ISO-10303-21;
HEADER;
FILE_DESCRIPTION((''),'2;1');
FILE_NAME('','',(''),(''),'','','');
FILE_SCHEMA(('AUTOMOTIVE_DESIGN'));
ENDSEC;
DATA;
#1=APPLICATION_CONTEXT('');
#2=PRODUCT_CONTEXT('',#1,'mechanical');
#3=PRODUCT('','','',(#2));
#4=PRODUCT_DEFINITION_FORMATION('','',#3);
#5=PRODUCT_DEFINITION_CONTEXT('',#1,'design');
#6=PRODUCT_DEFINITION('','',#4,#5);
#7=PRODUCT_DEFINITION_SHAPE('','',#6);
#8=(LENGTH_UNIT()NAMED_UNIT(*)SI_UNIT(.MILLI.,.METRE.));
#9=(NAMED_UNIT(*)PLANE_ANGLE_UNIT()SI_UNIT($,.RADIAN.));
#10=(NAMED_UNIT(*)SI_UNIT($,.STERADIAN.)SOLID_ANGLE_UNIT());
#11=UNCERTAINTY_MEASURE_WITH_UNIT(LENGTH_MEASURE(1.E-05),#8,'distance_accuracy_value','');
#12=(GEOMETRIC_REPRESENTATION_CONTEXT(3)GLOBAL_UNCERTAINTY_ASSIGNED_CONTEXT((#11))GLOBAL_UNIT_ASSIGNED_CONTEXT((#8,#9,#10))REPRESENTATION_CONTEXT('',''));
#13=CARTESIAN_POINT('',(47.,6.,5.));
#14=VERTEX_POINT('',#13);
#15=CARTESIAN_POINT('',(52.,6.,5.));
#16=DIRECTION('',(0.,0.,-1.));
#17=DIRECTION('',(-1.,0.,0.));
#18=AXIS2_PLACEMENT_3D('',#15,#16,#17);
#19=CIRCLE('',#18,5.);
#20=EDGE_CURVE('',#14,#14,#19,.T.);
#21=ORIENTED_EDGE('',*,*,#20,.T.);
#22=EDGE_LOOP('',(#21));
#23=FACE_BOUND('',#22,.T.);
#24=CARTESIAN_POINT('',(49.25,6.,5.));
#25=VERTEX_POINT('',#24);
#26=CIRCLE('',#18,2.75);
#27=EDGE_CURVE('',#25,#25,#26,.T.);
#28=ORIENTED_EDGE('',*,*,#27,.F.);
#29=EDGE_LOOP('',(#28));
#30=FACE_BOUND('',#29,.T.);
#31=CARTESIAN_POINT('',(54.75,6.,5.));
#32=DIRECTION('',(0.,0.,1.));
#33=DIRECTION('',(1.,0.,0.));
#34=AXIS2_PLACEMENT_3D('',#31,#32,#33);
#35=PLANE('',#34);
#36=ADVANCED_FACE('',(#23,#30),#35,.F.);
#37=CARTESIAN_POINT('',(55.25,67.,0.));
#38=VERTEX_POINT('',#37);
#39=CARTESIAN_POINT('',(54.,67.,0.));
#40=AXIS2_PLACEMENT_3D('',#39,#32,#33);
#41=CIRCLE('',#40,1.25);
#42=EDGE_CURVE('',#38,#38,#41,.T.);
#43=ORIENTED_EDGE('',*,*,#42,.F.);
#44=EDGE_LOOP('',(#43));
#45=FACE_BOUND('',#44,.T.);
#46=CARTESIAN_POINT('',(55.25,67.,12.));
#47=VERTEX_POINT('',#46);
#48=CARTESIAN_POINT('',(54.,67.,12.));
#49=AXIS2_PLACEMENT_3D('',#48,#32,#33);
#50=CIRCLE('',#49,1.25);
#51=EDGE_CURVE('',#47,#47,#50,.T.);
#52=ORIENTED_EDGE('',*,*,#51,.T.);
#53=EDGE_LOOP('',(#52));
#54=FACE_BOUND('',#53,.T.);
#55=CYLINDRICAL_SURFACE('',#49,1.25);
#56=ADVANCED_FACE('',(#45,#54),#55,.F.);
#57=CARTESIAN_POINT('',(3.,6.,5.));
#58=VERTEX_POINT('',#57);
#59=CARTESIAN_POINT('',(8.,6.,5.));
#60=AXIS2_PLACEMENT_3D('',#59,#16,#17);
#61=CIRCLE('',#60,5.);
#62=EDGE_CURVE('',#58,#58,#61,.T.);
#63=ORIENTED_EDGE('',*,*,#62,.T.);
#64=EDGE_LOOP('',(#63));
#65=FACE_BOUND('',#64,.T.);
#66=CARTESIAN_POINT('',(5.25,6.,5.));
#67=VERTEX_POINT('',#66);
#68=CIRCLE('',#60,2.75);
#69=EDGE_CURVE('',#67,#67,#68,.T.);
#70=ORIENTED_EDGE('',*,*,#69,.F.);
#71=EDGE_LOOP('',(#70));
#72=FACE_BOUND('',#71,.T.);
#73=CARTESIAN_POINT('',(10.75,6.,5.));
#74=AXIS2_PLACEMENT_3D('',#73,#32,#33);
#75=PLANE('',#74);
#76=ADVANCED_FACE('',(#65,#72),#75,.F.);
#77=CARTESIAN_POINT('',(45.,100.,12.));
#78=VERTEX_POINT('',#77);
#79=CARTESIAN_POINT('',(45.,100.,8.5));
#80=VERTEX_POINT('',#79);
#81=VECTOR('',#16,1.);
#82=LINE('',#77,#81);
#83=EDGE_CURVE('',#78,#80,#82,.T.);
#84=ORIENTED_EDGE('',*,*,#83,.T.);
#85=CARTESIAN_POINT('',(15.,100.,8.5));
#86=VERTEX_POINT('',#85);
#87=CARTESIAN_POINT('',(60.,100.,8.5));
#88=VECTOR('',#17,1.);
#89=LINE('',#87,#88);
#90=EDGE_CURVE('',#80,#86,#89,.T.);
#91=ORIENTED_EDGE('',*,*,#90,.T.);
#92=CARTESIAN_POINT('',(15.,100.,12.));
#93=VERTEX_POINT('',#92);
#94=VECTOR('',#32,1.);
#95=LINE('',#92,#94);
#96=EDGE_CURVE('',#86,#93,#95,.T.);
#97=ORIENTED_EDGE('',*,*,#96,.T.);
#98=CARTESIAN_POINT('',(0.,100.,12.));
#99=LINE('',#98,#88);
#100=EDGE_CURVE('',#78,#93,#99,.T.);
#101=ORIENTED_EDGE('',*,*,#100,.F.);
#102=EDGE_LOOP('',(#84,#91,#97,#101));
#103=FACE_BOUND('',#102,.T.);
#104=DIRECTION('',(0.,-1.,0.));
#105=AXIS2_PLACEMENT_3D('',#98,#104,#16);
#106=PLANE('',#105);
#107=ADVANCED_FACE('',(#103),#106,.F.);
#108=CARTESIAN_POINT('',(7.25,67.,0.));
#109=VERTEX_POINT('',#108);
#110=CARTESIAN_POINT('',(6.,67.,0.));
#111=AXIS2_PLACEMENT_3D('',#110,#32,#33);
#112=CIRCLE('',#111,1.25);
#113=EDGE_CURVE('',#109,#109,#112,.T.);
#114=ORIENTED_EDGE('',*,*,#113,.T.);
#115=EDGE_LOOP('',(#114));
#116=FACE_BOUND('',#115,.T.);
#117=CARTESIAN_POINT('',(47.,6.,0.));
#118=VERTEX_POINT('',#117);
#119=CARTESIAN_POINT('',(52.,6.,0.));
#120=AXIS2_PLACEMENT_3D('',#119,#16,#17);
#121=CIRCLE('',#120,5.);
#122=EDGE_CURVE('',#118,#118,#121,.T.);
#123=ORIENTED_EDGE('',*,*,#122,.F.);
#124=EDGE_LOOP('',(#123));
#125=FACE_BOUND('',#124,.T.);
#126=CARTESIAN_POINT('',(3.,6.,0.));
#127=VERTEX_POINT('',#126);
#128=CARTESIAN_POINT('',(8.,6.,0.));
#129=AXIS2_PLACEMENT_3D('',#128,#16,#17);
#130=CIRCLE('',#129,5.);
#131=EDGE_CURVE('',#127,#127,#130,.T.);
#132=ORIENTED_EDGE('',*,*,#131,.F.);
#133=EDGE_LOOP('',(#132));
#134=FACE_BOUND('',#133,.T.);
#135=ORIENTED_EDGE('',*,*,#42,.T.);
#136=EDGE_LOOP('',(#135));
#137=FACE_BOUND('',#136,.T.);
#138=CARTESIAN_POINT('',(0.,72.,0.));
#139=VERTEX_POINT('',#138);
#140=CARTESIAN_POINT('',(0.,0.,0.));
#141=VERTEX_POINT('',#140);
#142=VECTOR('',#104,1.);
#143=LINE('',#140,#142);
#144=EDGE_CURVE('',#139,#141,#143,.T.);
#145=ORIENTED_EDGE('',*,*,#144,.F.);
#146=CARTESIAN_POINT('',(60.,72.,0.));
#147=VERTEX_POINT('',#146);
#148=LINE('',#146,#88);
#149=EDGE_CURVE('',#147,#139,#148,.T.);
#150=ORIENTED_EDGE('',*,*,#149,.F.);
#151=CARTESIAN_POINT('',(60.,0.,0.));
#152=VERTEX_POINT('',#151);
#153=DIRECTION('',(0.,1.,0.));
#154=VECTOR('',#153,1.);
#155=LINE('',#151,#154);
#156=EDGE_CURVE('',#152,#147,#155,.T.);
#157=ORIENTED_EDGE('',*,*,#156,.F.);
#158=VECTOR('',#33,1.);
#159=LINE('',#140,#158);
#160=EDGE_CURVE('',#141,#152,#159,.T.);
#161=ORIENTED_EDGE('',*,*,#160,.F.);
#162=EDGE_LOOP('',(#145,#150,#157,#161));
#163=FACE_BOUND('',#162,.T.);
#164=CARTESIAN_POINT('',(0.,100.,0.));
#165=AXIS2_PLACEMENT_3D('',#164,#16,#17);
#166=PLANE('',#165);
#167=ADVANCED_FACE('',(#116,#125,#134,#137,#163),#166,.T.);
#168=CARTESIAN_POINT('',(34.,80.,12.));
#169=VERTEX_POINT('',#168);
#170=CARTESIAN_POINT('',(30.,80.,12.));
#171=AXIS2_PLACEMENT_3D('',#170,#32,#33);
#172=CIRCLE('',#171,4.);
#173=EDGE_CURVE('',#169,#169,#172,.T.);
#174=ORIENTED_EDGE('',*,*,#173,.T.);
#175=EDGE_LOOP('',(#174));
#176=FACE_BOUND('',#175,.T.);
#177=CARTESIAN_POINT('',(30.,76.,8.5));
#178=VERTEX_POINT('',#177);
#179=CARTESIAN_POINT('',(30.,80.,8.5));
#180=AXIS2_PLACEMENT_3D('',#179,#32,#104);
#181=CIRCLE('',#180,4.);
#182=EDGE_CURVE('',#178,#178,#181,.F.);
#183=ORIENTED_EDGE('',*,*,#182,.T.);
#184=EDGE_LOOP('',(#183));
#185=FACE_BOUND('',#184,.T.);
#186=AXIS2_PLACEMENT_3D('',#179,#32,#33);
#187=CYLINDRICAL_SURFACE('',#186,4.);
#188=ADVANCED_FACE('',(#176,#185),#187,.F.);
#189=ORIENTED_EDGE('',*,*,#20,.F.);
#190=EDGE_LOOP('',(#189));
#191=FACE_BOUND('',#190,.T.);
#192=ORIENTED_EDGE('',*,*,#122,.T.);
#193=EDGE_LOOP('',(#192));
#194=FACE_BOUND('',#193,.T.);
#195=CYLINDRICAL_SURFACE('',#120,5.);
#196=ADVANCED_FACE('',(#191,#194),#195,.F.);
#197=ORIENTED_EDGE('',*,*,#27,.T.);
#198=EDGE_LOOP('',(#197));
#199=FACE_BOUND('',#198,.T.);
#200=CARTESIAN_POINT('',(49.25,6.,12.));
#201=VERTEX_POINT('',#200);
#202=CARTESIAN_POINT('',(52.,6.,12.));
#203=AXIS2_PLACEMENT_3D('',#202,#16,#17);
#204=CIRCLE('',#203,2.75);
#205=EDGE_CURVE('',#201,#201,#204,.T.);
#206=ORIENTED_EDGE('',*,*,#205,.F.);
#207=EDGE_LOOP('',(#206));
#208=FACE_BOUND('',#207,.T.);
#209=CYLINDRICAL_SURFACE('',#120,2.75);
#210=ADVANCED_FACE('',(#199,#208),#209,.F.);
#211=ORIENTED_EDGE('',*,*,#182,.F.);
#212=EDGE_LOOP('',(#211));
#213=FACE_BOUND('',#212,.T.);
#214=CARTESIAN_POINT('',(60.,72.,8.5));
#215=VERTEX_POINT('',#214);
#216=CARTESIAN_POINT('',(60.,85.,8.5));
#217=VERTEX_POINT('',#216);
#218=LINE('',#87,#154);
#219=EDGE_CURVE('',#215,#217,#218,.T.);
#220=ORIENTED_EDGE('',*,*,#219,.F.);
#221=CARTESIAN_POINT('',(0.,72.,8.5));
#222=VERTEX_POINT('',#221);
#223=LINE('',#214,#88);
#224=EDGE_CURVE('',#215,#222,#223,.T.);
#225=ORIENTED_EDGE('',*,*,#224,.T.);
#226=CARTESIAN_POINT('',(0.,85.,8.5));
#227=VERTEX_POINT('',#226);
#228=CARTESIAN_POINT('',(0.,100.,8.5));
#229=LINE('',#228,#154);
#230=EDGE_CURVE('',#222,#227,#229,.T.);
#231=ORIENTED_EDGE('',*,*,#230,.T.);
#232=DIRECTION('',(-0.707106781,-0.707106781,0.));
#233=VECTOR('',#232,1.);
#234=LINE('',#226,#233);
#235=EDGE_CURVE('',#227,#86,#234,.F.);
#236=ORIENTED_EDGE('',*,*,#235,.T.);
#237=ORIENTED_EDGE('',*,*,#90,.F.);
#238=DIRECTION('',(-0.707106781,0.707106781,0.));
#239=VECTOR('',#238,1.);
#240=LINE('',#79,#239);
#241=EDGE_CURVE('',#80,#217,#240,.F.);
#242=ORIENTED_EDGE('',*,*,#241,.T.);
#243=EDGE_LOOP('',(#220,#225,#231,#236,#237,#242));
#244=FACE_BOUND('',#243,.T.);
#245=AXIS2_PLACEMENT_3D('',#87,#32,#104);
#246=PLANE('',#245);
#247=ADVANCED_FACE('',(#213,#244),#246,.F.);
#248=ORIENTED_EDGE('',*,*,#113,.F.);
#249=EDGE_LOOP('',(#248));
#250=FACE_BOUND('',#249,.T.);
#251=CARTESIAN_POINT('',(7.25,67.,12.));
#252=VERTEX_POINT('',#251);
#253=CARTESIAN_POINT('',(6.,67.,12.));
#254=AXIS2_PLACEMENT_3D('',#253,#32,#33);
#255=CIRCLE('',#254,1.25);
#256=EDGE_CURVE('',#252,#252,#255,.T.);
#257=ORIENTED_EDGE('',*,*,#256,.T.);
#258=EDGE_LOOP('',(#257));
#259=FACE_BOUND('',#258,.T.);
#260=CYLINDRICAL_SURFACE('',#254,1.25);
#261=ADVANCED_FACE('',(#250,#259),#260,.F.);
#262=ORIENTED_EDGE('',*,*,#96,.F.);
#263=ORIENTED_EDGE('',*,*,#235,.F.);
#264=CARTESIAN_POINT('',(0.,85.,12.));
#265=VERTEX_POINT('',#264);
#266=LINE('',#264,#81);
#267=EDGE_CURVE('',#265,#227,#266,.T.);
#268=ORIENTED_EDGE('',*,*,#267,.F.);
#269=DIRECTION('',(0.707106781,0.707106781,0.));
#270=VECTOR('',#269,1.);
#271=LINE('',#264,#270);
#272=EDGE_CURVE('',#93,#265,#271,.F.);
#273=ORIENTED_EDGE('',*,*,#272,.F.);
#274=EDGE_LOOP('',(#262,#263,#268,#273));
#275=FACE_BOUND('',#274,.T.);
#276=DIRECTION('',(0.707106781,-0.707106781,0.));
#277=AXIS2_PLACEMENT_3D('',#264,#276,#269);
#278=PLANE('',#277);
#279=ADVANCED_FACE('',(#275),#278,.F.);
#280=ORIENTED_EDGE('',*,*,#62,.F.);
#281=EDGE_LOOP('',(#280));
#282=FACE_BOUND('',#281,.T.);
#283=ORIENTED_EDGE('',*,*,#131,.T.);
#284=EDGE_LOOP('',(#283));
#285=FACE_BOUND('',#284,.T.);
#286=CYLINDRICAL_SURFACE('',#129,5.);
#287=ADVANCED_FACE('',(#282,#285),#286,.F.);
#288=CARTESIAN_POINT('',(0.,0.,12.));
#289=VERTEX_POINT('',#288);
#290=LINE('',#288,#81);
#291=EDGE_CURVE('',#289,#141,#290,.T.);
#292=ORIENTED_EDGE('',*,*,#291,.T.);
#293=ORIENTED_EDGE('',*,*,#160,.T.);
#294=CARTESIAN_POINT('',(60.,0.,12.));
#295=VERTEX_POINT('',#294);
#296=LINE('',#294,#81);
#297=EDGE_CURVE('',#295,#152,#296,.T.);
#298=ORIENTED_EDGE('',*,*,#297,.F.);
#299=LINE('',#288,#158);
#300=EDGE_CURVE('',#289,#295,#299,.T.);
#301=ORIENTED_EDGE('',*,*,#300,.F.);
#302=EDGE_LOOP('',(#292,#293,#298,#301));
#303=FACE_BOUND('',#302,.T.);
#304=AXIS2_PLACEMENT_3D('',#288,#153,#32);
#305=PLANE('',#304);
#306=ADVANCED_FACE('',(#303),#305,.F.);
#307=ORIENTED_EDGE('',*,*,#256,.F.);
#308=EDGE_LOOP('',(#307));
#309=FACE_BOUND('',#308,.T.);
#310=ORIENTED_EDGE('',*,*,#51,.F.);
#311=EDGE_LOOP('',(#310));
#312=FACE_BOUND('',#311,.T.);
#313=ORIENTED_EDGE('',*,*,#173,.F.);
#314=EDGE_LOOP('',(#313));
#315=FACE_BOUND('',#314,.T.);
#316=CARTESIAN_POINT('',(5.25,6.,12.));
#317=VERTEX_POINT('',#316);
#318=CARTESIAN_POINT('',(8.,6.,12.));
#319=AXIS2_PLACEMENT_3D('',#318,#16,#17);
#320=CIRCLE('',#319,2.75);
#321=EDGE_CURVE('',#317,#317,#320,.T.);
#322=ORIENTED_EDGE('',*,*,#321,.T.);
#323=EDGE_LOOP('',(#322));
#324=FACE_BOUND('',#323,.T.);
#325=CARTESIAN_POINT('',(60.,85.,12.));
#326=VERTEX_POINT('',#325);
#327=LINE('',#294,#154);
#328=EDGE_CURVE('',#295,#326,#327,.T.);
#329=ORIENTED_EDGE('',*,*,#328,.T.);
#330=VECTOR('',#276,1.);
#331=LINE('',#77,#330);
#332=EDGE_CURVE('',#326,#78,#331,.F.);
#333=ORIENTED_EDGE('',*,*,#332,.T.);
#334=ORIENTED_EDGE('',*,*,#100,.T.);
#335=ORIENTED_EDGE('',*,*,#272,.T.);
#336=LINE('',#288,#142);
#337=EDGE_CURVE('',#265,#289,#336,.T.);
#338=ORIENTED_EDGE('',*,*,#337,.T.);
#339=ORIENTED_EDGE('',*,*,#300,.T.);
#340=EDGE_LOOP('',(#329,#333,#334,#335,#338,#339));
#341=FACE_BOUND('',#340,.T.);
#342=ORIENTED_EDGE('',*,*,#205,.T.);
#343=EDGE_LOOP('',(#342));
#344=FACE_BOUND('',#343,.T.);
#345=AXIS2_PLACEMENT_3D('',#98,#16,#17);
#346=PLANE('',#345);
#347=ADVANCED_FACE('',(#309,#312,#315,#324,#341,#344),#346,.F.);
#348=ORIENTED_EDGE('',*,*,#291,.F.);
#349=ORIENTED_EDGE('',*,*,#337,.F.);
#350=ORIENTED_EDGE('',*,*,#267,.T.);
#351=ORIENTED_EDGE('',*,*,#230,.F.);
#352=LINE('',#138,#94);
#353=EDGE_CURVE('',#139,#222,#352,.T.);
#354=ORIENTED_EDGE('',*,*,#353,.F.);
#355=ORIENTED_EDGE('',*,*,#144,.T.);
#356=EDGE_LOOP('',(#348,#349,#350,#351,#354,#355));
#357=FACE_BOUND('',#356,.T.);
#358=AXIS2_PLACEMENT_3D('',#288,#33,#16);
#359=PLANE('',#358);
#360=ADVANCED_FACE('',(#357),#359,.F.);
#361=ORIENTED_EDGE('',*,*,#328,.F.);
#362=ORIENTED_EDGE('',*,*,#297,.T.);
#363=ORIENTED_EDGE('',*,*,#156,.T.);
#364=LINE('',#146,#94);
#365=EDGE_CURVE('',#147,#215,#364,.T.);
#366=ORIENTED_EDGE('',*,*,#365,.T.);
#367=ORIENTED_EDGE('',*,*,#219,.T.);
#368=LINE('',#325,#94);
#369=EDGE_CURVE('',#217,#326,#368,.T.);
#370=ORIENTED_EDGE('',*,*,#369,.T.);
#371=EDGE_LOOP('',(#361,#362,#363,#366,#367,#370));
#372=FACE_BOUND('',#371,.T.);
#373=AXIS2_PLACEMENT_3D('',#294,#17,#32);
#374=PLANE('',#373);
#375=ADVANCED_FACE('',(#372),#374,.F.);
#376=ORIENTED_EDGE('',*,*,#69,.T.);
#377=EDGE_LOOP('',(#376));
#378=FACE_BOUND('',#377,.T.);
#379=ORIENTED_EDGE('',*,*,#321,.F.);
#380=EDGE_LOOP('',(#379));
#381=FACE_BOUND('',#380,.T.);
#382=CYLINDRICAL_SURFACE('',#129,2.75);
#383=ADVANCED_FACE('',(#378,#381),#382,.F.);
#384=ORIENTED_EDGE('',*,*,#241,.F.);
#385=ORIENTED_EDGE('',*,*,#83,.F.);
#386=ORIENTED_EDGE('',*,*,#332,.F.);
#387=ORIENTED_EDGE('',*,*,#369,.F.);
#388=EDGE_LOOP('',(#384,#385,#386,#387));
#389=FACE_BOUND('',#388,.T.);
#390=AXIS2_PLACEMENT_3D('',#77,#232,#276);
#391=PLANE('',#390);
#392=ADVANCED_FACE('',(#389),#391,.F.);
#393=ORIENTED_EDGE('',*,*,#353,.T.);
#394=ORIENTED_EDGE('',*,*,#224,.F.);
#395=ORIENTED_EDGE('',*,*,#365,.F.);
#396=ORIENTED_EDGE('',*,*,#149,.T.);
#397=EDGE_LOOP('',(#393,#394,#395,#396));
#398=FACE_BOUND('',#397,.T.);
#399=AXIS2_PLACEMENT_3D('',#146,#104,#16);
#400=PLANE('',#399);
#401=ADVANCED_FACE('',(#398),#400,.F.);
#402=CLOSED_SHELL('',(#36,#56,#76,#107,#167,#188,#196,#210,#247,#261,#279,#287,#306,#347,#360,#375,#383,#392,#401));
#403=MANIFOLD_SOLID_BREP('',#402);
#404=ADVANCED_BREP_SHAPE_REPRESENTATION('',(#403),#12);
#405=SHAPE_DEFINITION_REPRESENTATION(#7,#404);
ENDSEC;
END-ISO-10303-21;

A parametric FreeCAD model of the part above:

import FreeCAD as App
import Part
import Sketcher

V = App.Vector


def edges_at(feature, points):
    """Names of the edges that pass closest to the given points."""
    edges = feature.Shape.Edges
    near = lambda p: min(range(len(edges)), key=lambda i: edges[i].distToShape(Part.Vertex(*p))[0])
    return sorted({f"Edge{near(p) + 1}" for p in points})

doc = App.newDocument("Part")
params = doc.addObject("Spreadsheet::Sheet", "Params")
for row, (alias, value) in enumerate([
    ("sketch1_width", "60 mm"),
    ("sketch1_height", "100 mm"),
    ("pad1_length", "12 mm"),
    ("sketch2_diameter", "8 mm"),
    ("pocket1_length", "3.5 mm"),
    ("sketch3_width", "28 mm"),
    ("sketch3_height", "8.5 mm"),
    ("sketch4_diameter", "2.5 mm"),
    ("hole_diameter", "2.5 mm"),
    ("sketch5_diameter", "2.5 mm"),
    ("hole2_diameter", "2.5 mm"),
    ("sketch6_diameter", "5.5 mm"),
    ("hole3_diameter", "5.5 mm"),
    ("hole3_cbore_diameter", "10 mm"),
    ("hole3_cbore_depth", "5 mm"),
    ("sketch7_diameter", "5.5 mm"),
    ("hole4_diameter", "5.5 mm"),
    ("hole4_cbore_diameter", "10 mm"),
    ("hole4_cbore_depth", "5 mm"),
    ("chamfer_size", "15 mm"),
], start=1):
    params.set(f"A{row}", alias)
    params.set(f"B{row}", "=" + value)
    params.setAlias(f"B{row}", alias)

body = doc.addObject("PartDesign::Body", "Body")

# Sketch on XY plane
sketch1 = doc.addObject("Sketcher::SketchObject", "Sketch")
body.addObject(sketch1)
sketch1.AttachmentSupport = (doc.XY_Plane, [""])
sketch1.MapMode = "FlatFace"
sketch1.addGeometry([
    Part.LineSegment(V(0, 100, 0), V(0, 0, 0)),
    Part.LineSegment(V(0, 0, 0), V(60, 0, 0)),
    Part.LineSegment(V(60, 0, 0), V(60, 100, 0)),
    Part.LineSegment(V(60, 100, 0), V(0, 100, 0)),
], False)
sketch1.addConstraint([
    Sketcher.Constraint("Coincident", 0, 2, 1, 1),
    Sketcher.Constraint("Coincident", 1, 2, 2, 1),
    Sketcher.Constraint("Coincident", 2, 2, 3, 1),
    Sketcher.Constraint("Coincident", 3, 2, 0, 1),
    Sketcher.Constraint("Vertical", 0),
    Sketcher.Constraint("Horizontal", 1),
    Sketcher.Constraint("Vertical", 2),
    Sketcher.Constraint("Horizontal", 3),
    Sketcher.Constraint("Coincident", 0, 2, -1, 1),
    Sketcher.Constraint("DistanceX", 1, 1, 1, 2, 60.0),
    Sketcher.Constraint("DistanceY", 0, 2, 0, 1, 100.0),
])
sketch1.setExpression("Constraints[9]", "Params.sketch1_width")
sketch1.setExpression("Constraints[10]", "Params.sketch1_height")
pad1 = doc.addObject("PartDesign::Pad", "Pad")
body.addObject(pad1)
pad1.Profile = sketch1
pad1.setExpression("Length", "Params.pad1_length")

# Sketch on XY plane
sketch2 = doc.addObject("Sketcher::SketchObject", "Sketch001")
body.addObject(sketch2)
sketch2.AttachmentSupport = (doc.XY_Plane, [""])
sketch2.MapMode = "FlatFace"
sketch2.AttachmentOffset = App.Placement(V(0, 0, 12), App.Rotation())
sketch2.addGeometry(Part.Circle(V(30, 80, 0), V(0, 0, 1), 4), False)
sketch2.addConstraint([
    Sketcher.Constraint("Diameter", 0, 8.0),
    Sketcher.Constraint("DistanceX", -1, 1, 0, 3, 30.0),
    Sketcher.Constraint("DistanceY", -1, 1, 0, 3, 80.0),
])
sketch2.setExpression("Constraints[0]", "Params.sketch2_diameter")
pocket1 = doc.addObject("PartDesign::Pocket", "Pocket")
body.addObject(pocket1)
pocket1.Profile = sketch2
pocket1.setExpression("Length", "Params.pocket1_length")

# Sketch on YZ plane
sketch3 = doc.addObject("Sketcher::SketchObject", "Sketch002")
body.addObject(sketch3)
sketch3.AttachmentSupport = (doc.YZ_Plane, [""])
sketch3.MapMode = "FlatFace"
sketch3.addGeometry([
    Part.LineSegment(V(100, 0, 0), V(72, 0, 0)),
    Part.LineSegment(V(72, 0, 0), V(72, 8, 0)),
    Part.LineSegment(V(72, 8, 0), V(100, 8, 0)),
    Part.LineSegment(V(100, 8, 0), V(100, 0, 0)),
], False)
sketch3.addConstraint([
    Sketcher.Constraint("Coincident", 0, 2, 1, 1),
    Sketcher.Constraint("Coincident", 1, 2, 2, 1),
    Sketcher.Constraint("Coincident", 2, 2, 3, 1),
    Sketcher.Constraint("Coincident", 3, 2, 0, 1),
    Sketcher.Constraint("Horizontal", 0),
    Sketcher.Constraint("Vertical", 1),
    Sketcher.Constraint("Horizontal", 2),
    Sketcher.Constraint("Vertical", 3),
    Sketcher.Constraint("PointOnObject", 0, 2, -1),
    Sketcher.Constraint("DistanceX", 0, 2, 0, 1, 28.0),
    Sketcher.Constraint("DistanceY", 1, 1, 1, 2, 8.5),
    Sketcher.Constraint("DistanceX", -1, 1, 0, 2, 72.0),
])
sketch3.setExpression("Constraints[9]", "Params.sketch3_width")
sketch3.setExpression("Constraints[10]", "Params.sketch3_height")
pocket2 = doc.addObject("PartDesign::Pocket", "Pocket001")
body.addObject(pocket2)
pocket2.Profile = sketch3
pocket2.Type = "ThroughAll"
pocket2.Reversed = True

# Sketch on XY plane
sketch4 = doc.addObject("Sketcher::SketchObject", "Sketch003")
body.addObject(sketch4)
sketch4.AttachmentSupport = (doc.XY_Plane, [""])
sketch4.MapMode = "FlatFace"
sketch4.AttachmentOffset = App.Placement(V(0, 0, 12), App.Rotation())
sketch4.addGeometry([
    Part.Circle(V(54, 67, 0), V(0, 0, 1), 1.2),
    Part.Circle(V(30, 80, 0), V(0, 0, 1), 1.2),
], False)
sketch4.addConstraint([
    Sketcher.Constraint("Equal", 0, 1),
    Sketcher.Constraint("Diameter", 0, 2.5),
    Sketcher.Constraint("DistanceX", -1, 1, 0, 3, 54.0),
    Sketcher.Constraint("DistanceY", -1, 1, 0, 3, 67.0),
    Sketcher.Constraint("DistanceX", -1, 1, 1, 3, 30.0),
    Sketcher.Constraint("DistanceY", -1, 1, 1, 3, 80.0),
])
sketch4.setExpression("Constraints[1]", "Params.sketch4_diameter")
doc.recompute()
hole = doc.addObject("PartDesign::Hole", "Hole")
body.addObject(hole)
hole.Profile = sketch4
hole.ThreadType = "None"
hole.setExpression("Diameter", "Params.hole_diameter")
hole.DepthType = "ThroughAll"

# Sketch on XY plane
sketch5 = doc.addObject("Sketcher::SketchObject", "Sketch004")
body.addObject(sketch5)
sketch5.AttachmentSupport = (doc.XY_Plane, [""])
sketch5.MapMode = "FlatFace"
sketch5.AttachmentOffset = App.Placement(V(0, 0, 12), App.Rotation())
sketch5.addGeometry(Part.Circle(V(6, 67, 0), V(0, 0, 1), 1.2), False)
sketch5.addConstraint([
    Sketcher.Constraint("Diameter", 0, 2.5),
    Sketcher.Constraint("DistanceX", -1, 1, 0, 3, 6.0),
    Sketcher.Constraint("DistanceY", -1, 1, 0, 3, 67.0),
])
sketch5.setExpression("Constraints[0]", "Params.sketch5_diameter")
doc.recompute()
hole2 = doc.addObject("PartDesign::Hole", "Hole001")
body.addObject(hole2)
hole2.Profile = sketch5
hole2.ThreadType = "None"
hole2.setExpression("Diameter", "Params.hole2_diameter")
hole2.DepthType = "ThroughAll"

# Sketch on XY plane
sketch6 = doc.addObject("Sketcher::SketchObject", "Sketch005")
body.addObject(sketch6)
sketch6.AttachmentSupport = (doc.XY_Plane, [""])
sketch6.MapMode = "FlatFace"
sketch6.addGeometry(Part.Circle(V(8, 6, 0), V(0, 0, 1), 2.8), False)
sketch6.addConstraint([
    Sketcher.Constraint("Diameter", 0, 5.5),
    Sketcher.Constraint("DistanceX", -1, 1, 0, 3, 8.0),
    Sketcher.Constraint("DistanceY", -1, 1, 0, 3, 6.0),
])
sketch6.setExpression("Constraints[0]", "Params.sketch6_diameter")
doc.recompute()
hole3 = doc.addObject("PartDesign::Hole", "Hole002")
body.addObject(hole3)
hole3.Profile = sketch6
hole3.ThreadType = "None"
hole3.setExpression("Diameter", "Params.hole3_diameter")
hole3.DepthType = "ThroughAll"
hole3.HoleCutType = "Counterbore"
hole3.setExpression("HoleCutDiameter", "Params.hole3_cbore_diameter")
hole3.setExpression("HoleCutDepth", "Params.hole3_cbore_depth")
hole3.Reversed = True

# Sketch on XY plane
sketch7 = doc.addObject("Sketcher::SketchObject", "Sketch006")
body.addObject(sketch7)
sketch7.AttachmentSupport = (doc.XY_Plane, [""])
sketch7.MapMode = "FlatFace"
sketch7.addGeometry(Part.Circle(V(52, 6, 0), V(0, 0, 1), 2.8), False)
sketch7.addConstraint([
    Sketcher.Constraint("Diameter", 0, 5.5),
    Sketcher.Constraint("DistanceX", -1, 1, 0, 3, 52.0),
    Sketcher.Constraint("DistanceY", -1, 1, 0, 3, 6.0),
])
sketch7.setExpression("Constraints[0]", "Params.sketch7_diameter")
doc.recompute()
hole4 = doc.addObject("PartDesign::Hole", "Hole003")
body.addObject(hole4)
hole4.Profile = sketch7
hole4.ThreadType = "None"
hole4.setExpression("Diameter", "Params.hole4_diameter")
hole4.DepthType = "ThroughAll"
hole4.HoleCutType = "Counterbore"
hole4.setExpression("HoleCutDiameter", "Params.hole4_cbore_diameter")
hole4.setExpression("HoleCutDepth", "Params.hole4_cbore_depth")
hole4.Reversed = True
doc.recompute()

chamfer = doc.addObject("PartDesign::Chamfer", "Chamfer")
body.addObject(chamfer)
chamfer.Base = (hole4, edges_at(hole4, [(0, 100, 10.25), (60, 100, 10.25)]))
chamfer.setExpression("Size", "Params.chamfer_size")

doc.recompute()
